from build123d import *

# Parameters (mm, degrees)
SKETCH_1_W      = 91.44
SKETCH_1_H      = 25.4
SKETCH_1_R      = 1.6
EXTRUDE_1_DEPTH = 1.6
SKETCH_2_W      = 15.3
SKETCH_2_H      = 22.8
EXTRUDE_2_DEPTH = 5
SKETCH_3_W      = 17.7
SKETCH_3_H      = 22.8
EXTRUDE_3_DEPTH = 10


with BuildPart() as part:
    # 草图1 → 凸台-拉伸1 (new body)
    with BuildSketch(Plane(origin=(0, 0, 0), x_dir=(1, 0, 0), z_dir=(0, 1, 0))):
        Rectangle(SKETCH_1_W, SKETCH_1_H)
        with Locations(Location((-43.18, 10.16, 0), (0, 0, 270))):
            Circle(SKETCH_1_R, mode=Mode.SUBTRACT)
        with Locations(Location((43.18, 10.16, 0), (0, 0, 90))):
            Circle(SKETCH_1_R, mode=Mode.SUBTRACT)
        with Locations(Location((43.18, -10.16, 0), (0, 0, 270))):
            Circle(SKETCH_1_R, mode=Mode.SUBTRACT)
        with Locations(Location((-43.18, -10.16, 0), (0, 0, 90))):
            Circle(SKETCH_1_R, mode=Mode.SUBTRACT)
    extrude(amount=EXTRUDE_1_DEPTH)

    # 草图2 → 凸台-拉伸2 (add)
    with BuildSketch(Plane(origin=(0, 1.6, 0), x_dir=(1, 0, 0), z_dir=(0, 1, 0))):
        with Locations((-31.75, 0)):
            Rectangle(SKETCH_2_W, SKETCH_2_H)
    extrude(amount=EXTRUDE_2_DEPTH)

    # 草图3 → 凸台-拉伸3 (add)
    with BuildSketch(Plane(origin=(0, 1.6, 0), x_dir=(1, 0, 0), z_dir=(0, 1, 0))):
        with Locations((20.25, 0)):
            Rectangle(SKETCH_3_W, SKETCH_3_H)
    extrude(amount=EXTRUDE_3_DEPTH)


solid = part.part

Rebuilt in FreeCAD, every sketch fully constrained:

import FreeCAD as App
import Part
import Sketcher


def add_polygon(sketch, points):
    """Adds a closed chain of lines whose ends are joined by coincident constraints."""
    first, n = sketch.GeometryCount, len(points)
    for a, b in zip(points, points[1:] + points[:1]):
        sketch.addGeometry(Part.LineSegment(App.Vector(*a, 0), App.Vector(*b, 0)), False)
    for i in range(n):
        sketch.addConstraint(Sketcher.Constraint("Coincident", first + i, 2, first + (i + 1) % n, 1))

doc = App.newDocument("Part")
params = doc.addObject("Spreadsheet::Sheet", "Params")
for row, (alias, value) in enumerate([
    ("sketch1_diameter", "3.2 mm"),
    ("sketch1_height", "25.4 mm"),
    ("sketch1_width", "91.44 mm"),
    ("pad1_length", "1.6 mm"),
    ("sketch2_width", "15.3 mm"),
    ("sketch2_height", "22.8 mm"),
    ("pad2_length", "5 mm"),
    ("sketch3_width", "17.7 mm"),
    ("sketch3_height", "22.8 mm"),
    ("pad3_length", "10 mm"),
], start=1):
    params.set(f"A{row}", alias)
    params.set(f"B{row}", "=" + value)
    params.setAlias(f"B{row}", alias)

body = doc.addObject("PartDesign::Body", "Body")

sketch1 = doc.addObject("Sketcher::SketchObject", "Sketch")
body.addObject(sketch1)
sketch1.AttachmentSupport = (doc.XZ_Plane, [""])
sketch1.MapMode = "FlatFace"
add_polygon(sketch1, [(-45.7, -12.7), (-45.7, 12.7), (45.7, 12.7), (45.7, -12.7)])
sketch1.addGeometry(Part.Circle(App.Vector(-43.2, 10.2, 0), App.Vector(0, 0, 1), 1.6), False)
sketch1.addGeometry(Part.Circle(App.Vector(43.2, 10.2, 0), App.Vector(0, 0, 1), 1.6), False)
sketch1.addGeometry(Part.Circle(App.Vector(-43.2, -10.2, 0), App.Vector(0, 0, 1), 1.6), False)
sketch1.addGeometry(Part.Circle(App.Vector(43.2, -10.2, 0), App.Vector(0, 0, 1), 1.6), False)
sketch1.addConstraint([
    Sketcher.Constraint("Vertical", 0),
    Sketcher.Constraint("Horizontal", 1),
    Sketcher.Constraint("Vertical", 2),
    Sketcher.Constraint("Horizontal", 3),
    Sketcher.Constraint("Equal", 4, 5),
    Sketcher.Constraint("Equal", 5, 6),
    Sketcher.Constraint("Equal", 6, 7),
    Sketcher.Constraint("Symmetric", 5, 3, 6, 3, -1, 1),
    Sketcher.Constraint("Symmetric", 4, 3, 7, 3, -1, 1),
    Sketcher.Constraint("Symmetric", 0, 2, 2, 2, -1, 1),
    Sketcher.Constraint("Symmetric", 4, 3, 5, 3, -2),
    Sketcher.Constraint("Diameter", 4, 3.2),
    Sketcher.Constraint("DistanceY", 0, 1, 0, 2, 25.4),
    Sketcher.Constraint("DistanceX", 1, 1, 1, 2, 91.44),
    Sketcher.Constraint("DistanceX", 0, 2, 5, 3, 88.9),
    Sketcher.Constraint("DistanceY", -1, 1, 4, 3, 10.16),
])
sketch1.setExpression("Constraints[15]", "Params.sketch1_diameter")
sketch1.setExpression("Constraints[16]", "Params.sketch1_height")
sketch1.setExpression("Constraints[17]", "Params.sketch1_width")
pad1 = doc.addObject("PartDesign::Pad", "Pad")
body.addObject(pad1)
pad1.Profile = sketch1
pad1.setExpression("Length", "Params.pad1_length")
pad1.Reversed = True

sketch2 = doc.addObject("Sketcher::SketchObject", "Sketch001")
body.addObject(sketch2)
sketch2.AttachmentSupport = (doc.XZ_Plane, [""])
sketch2.MapMode = "FlatFace"
sketch2.AttachmentOffset = App.Placement(App.Vector(0, 0, -1.6), App.Rotation())
add_polygon(sketch2, [(-39, -11), (-39, 11), (-24, 11), (-24, -11)])
sketch2.addConstraint([
    Sketcher.Constraint("Vertical", 0),
    Sketcher.Constraint("Horizontal", 1),
    Sketcher.Constraint("Vertical", 2),
    Sketcher.Constraint("Horizontal", 3),
    Sketcher.Constraint("DistanceX", 1, 1, 1, 2, 15.3),
    Sketcher.Constraint("DistanceY", 0, 1, 0, 2, 22.8),
    Sketcher.Constraint("DistanceX", 0, 2, -1, 1, 39.4),
    Sketcher.Constraint("DistanceY", -1, 1, 0, 2, 11.4),
])
sketch2.setExpression("Constraints[8]", "Params.sketch2_width")
sketch2.setExpression("Constraints[9]", "Params.sketch2_height")
pad2 = doc.addObject("PartDesign::Pad", "Pad001")
body.addObject(pad2)
pad2.Profile = sketch2
pad2.setExpression("Length", "Params.pad2_length")
pad2.Reversed = True

sketch3 = doc.addObject("Sketcher::SketchObject", "Sketch002")
body.addObject(sketch3)
sketch3.AttachmentSupport = (doc.XZ_Plane, [""])
sketch3.MapMode = "FlatFace"
sketch3.AttachmentOffset = App.Placement(App.Vector(0, 0, -1.6), App.Rotation())
add_polygon(sketch3, [(11, -11), (11, 11), (29, 11), (29, -11)])
sketch3.addConstraint([
    Sketcher.Constraint("Vertical", 0),
    Sketcher.Constraint("Horizontal", 1),
    Sketcher.Constraint("Vertical", 2),
    Sketcher.Constraint("Horizontal", 3),
    Sketcher.Constraint("DistanceX", 1, 1, 1, 2, 17.7),
    Sketcher.Constraint("DistanceY", 0, 1, 0, 2, 22.8),
    Sketcher.Constraint("DistanceX", -1, 1, 0, 2, 11.4),
    Sketcher.Constraint("DistanceY", -1, 1, 0, 2, 11.4),
])
sketch3.setExpression("Constraints[8]", "Params.sketch3_width")
sketch3.setExpression("Constraints[9]", "Params.sketch3_height")
pad3 = doc.addObject("PartDesign::Pad", "Pad002")
body.addObject(pad3)
pad3.Profile = sketch3
pad3.setExpression("Length", "Params.pad3_length")
pad3.Reversed = True

doc.recompute()
